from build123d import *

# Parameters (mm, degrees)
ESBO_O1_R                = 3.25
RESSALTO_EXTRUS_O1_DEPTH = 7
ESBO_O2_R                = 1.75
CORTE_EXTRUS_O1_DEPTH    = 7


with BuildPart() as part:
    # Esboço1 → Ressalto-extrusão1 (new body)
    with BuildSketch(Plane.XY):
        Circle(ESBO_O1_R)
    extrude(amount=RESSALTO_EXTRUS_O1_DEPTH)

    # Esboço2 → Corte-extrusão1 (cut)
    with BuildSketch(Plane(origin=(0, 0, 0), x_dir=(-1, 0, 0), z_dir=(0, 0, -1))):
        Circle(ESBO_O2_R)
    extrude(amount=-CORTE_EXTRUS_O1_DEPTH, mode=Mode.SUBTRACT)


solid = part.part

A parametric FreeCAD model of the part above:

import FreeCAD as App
import Part
import Sketcher
Q = App.Units.Quantity

doc = App.newDocument("Part")
params = doc.addObject("Spreadsheet::Sheet", "Params")
for row, (alias, value) in enumerate([
    ("sketch1_diameter", "6.5 mm"),
    ("pad1_length", "7 mm"),
    ("sketch2_diameter", "3.5 mm"),
    ("pocket1_length", "7 mm"),
], start=1):
    params.set(f"A{row}", alias)
    params.set(f"B{row}", "=" + value)
    params.setAlias(f"B{row}", alias)

body = doc.addObject("PartDesign::Body", "Body")

# Sketch on XY plane
sketch1 = body.newObject("Sketcher::SketchObject", "Sketch")
sketch1.AttachmentSupport = (doc.getObject("XY_Plane"), [""])
sketch1.MapMode = "FlatFace"
sketch1.addGeometry(Part.Circle(App.Vector(0, 0, 0), App.Vector(0, 0, 1), 3.2), False)
sketch1.addConstraint([
    Sketcher.Constraint("Coincident", 0, 3, -1, 1),
    Sketcher.Constraint("Diameter", 0, Q("6.5 mm")),
])
sketch1.setExpression("Constraints[1]", "Params.sketch1_diameter")
pad1 = body.newObject("PartDesign::Pad", "Pad")
pad1.Profile = sketch1
pad1.setExpression("Length", "Params.pad1_length")

# Sketch on XY plane
sketch2 = body.newObject("Sketcher::SketchObject", "Sketch001")
sketch2.AttachmentSupport = (doc.getObject("XY_Plane"), [""])
sketch2.MapMode = "FlatFace"
sketch2.addGeometry(Part.Circle(App.Vector(0, 0, 0), App.Vector(0, 0, 1), 1.8), False)
sketch2.addConstraint([
    Sketcher.Constraint("Coincident", 0, 3, -1, 1),
    Sketcher.Constraint("Diameter", 0, Q("3.5 mm")),
])
sketch2.setExpression("Constraints[1]", "Params.sketch2_diameter")
pocket1 = body.newObject("PartDesign::Pocket", "Pocket")
pocket1.Profile = sketch2
pocket1.setExpression("Length", "Params.pocket1_length")
pocket1.Reversed = True

doc.recompute()
